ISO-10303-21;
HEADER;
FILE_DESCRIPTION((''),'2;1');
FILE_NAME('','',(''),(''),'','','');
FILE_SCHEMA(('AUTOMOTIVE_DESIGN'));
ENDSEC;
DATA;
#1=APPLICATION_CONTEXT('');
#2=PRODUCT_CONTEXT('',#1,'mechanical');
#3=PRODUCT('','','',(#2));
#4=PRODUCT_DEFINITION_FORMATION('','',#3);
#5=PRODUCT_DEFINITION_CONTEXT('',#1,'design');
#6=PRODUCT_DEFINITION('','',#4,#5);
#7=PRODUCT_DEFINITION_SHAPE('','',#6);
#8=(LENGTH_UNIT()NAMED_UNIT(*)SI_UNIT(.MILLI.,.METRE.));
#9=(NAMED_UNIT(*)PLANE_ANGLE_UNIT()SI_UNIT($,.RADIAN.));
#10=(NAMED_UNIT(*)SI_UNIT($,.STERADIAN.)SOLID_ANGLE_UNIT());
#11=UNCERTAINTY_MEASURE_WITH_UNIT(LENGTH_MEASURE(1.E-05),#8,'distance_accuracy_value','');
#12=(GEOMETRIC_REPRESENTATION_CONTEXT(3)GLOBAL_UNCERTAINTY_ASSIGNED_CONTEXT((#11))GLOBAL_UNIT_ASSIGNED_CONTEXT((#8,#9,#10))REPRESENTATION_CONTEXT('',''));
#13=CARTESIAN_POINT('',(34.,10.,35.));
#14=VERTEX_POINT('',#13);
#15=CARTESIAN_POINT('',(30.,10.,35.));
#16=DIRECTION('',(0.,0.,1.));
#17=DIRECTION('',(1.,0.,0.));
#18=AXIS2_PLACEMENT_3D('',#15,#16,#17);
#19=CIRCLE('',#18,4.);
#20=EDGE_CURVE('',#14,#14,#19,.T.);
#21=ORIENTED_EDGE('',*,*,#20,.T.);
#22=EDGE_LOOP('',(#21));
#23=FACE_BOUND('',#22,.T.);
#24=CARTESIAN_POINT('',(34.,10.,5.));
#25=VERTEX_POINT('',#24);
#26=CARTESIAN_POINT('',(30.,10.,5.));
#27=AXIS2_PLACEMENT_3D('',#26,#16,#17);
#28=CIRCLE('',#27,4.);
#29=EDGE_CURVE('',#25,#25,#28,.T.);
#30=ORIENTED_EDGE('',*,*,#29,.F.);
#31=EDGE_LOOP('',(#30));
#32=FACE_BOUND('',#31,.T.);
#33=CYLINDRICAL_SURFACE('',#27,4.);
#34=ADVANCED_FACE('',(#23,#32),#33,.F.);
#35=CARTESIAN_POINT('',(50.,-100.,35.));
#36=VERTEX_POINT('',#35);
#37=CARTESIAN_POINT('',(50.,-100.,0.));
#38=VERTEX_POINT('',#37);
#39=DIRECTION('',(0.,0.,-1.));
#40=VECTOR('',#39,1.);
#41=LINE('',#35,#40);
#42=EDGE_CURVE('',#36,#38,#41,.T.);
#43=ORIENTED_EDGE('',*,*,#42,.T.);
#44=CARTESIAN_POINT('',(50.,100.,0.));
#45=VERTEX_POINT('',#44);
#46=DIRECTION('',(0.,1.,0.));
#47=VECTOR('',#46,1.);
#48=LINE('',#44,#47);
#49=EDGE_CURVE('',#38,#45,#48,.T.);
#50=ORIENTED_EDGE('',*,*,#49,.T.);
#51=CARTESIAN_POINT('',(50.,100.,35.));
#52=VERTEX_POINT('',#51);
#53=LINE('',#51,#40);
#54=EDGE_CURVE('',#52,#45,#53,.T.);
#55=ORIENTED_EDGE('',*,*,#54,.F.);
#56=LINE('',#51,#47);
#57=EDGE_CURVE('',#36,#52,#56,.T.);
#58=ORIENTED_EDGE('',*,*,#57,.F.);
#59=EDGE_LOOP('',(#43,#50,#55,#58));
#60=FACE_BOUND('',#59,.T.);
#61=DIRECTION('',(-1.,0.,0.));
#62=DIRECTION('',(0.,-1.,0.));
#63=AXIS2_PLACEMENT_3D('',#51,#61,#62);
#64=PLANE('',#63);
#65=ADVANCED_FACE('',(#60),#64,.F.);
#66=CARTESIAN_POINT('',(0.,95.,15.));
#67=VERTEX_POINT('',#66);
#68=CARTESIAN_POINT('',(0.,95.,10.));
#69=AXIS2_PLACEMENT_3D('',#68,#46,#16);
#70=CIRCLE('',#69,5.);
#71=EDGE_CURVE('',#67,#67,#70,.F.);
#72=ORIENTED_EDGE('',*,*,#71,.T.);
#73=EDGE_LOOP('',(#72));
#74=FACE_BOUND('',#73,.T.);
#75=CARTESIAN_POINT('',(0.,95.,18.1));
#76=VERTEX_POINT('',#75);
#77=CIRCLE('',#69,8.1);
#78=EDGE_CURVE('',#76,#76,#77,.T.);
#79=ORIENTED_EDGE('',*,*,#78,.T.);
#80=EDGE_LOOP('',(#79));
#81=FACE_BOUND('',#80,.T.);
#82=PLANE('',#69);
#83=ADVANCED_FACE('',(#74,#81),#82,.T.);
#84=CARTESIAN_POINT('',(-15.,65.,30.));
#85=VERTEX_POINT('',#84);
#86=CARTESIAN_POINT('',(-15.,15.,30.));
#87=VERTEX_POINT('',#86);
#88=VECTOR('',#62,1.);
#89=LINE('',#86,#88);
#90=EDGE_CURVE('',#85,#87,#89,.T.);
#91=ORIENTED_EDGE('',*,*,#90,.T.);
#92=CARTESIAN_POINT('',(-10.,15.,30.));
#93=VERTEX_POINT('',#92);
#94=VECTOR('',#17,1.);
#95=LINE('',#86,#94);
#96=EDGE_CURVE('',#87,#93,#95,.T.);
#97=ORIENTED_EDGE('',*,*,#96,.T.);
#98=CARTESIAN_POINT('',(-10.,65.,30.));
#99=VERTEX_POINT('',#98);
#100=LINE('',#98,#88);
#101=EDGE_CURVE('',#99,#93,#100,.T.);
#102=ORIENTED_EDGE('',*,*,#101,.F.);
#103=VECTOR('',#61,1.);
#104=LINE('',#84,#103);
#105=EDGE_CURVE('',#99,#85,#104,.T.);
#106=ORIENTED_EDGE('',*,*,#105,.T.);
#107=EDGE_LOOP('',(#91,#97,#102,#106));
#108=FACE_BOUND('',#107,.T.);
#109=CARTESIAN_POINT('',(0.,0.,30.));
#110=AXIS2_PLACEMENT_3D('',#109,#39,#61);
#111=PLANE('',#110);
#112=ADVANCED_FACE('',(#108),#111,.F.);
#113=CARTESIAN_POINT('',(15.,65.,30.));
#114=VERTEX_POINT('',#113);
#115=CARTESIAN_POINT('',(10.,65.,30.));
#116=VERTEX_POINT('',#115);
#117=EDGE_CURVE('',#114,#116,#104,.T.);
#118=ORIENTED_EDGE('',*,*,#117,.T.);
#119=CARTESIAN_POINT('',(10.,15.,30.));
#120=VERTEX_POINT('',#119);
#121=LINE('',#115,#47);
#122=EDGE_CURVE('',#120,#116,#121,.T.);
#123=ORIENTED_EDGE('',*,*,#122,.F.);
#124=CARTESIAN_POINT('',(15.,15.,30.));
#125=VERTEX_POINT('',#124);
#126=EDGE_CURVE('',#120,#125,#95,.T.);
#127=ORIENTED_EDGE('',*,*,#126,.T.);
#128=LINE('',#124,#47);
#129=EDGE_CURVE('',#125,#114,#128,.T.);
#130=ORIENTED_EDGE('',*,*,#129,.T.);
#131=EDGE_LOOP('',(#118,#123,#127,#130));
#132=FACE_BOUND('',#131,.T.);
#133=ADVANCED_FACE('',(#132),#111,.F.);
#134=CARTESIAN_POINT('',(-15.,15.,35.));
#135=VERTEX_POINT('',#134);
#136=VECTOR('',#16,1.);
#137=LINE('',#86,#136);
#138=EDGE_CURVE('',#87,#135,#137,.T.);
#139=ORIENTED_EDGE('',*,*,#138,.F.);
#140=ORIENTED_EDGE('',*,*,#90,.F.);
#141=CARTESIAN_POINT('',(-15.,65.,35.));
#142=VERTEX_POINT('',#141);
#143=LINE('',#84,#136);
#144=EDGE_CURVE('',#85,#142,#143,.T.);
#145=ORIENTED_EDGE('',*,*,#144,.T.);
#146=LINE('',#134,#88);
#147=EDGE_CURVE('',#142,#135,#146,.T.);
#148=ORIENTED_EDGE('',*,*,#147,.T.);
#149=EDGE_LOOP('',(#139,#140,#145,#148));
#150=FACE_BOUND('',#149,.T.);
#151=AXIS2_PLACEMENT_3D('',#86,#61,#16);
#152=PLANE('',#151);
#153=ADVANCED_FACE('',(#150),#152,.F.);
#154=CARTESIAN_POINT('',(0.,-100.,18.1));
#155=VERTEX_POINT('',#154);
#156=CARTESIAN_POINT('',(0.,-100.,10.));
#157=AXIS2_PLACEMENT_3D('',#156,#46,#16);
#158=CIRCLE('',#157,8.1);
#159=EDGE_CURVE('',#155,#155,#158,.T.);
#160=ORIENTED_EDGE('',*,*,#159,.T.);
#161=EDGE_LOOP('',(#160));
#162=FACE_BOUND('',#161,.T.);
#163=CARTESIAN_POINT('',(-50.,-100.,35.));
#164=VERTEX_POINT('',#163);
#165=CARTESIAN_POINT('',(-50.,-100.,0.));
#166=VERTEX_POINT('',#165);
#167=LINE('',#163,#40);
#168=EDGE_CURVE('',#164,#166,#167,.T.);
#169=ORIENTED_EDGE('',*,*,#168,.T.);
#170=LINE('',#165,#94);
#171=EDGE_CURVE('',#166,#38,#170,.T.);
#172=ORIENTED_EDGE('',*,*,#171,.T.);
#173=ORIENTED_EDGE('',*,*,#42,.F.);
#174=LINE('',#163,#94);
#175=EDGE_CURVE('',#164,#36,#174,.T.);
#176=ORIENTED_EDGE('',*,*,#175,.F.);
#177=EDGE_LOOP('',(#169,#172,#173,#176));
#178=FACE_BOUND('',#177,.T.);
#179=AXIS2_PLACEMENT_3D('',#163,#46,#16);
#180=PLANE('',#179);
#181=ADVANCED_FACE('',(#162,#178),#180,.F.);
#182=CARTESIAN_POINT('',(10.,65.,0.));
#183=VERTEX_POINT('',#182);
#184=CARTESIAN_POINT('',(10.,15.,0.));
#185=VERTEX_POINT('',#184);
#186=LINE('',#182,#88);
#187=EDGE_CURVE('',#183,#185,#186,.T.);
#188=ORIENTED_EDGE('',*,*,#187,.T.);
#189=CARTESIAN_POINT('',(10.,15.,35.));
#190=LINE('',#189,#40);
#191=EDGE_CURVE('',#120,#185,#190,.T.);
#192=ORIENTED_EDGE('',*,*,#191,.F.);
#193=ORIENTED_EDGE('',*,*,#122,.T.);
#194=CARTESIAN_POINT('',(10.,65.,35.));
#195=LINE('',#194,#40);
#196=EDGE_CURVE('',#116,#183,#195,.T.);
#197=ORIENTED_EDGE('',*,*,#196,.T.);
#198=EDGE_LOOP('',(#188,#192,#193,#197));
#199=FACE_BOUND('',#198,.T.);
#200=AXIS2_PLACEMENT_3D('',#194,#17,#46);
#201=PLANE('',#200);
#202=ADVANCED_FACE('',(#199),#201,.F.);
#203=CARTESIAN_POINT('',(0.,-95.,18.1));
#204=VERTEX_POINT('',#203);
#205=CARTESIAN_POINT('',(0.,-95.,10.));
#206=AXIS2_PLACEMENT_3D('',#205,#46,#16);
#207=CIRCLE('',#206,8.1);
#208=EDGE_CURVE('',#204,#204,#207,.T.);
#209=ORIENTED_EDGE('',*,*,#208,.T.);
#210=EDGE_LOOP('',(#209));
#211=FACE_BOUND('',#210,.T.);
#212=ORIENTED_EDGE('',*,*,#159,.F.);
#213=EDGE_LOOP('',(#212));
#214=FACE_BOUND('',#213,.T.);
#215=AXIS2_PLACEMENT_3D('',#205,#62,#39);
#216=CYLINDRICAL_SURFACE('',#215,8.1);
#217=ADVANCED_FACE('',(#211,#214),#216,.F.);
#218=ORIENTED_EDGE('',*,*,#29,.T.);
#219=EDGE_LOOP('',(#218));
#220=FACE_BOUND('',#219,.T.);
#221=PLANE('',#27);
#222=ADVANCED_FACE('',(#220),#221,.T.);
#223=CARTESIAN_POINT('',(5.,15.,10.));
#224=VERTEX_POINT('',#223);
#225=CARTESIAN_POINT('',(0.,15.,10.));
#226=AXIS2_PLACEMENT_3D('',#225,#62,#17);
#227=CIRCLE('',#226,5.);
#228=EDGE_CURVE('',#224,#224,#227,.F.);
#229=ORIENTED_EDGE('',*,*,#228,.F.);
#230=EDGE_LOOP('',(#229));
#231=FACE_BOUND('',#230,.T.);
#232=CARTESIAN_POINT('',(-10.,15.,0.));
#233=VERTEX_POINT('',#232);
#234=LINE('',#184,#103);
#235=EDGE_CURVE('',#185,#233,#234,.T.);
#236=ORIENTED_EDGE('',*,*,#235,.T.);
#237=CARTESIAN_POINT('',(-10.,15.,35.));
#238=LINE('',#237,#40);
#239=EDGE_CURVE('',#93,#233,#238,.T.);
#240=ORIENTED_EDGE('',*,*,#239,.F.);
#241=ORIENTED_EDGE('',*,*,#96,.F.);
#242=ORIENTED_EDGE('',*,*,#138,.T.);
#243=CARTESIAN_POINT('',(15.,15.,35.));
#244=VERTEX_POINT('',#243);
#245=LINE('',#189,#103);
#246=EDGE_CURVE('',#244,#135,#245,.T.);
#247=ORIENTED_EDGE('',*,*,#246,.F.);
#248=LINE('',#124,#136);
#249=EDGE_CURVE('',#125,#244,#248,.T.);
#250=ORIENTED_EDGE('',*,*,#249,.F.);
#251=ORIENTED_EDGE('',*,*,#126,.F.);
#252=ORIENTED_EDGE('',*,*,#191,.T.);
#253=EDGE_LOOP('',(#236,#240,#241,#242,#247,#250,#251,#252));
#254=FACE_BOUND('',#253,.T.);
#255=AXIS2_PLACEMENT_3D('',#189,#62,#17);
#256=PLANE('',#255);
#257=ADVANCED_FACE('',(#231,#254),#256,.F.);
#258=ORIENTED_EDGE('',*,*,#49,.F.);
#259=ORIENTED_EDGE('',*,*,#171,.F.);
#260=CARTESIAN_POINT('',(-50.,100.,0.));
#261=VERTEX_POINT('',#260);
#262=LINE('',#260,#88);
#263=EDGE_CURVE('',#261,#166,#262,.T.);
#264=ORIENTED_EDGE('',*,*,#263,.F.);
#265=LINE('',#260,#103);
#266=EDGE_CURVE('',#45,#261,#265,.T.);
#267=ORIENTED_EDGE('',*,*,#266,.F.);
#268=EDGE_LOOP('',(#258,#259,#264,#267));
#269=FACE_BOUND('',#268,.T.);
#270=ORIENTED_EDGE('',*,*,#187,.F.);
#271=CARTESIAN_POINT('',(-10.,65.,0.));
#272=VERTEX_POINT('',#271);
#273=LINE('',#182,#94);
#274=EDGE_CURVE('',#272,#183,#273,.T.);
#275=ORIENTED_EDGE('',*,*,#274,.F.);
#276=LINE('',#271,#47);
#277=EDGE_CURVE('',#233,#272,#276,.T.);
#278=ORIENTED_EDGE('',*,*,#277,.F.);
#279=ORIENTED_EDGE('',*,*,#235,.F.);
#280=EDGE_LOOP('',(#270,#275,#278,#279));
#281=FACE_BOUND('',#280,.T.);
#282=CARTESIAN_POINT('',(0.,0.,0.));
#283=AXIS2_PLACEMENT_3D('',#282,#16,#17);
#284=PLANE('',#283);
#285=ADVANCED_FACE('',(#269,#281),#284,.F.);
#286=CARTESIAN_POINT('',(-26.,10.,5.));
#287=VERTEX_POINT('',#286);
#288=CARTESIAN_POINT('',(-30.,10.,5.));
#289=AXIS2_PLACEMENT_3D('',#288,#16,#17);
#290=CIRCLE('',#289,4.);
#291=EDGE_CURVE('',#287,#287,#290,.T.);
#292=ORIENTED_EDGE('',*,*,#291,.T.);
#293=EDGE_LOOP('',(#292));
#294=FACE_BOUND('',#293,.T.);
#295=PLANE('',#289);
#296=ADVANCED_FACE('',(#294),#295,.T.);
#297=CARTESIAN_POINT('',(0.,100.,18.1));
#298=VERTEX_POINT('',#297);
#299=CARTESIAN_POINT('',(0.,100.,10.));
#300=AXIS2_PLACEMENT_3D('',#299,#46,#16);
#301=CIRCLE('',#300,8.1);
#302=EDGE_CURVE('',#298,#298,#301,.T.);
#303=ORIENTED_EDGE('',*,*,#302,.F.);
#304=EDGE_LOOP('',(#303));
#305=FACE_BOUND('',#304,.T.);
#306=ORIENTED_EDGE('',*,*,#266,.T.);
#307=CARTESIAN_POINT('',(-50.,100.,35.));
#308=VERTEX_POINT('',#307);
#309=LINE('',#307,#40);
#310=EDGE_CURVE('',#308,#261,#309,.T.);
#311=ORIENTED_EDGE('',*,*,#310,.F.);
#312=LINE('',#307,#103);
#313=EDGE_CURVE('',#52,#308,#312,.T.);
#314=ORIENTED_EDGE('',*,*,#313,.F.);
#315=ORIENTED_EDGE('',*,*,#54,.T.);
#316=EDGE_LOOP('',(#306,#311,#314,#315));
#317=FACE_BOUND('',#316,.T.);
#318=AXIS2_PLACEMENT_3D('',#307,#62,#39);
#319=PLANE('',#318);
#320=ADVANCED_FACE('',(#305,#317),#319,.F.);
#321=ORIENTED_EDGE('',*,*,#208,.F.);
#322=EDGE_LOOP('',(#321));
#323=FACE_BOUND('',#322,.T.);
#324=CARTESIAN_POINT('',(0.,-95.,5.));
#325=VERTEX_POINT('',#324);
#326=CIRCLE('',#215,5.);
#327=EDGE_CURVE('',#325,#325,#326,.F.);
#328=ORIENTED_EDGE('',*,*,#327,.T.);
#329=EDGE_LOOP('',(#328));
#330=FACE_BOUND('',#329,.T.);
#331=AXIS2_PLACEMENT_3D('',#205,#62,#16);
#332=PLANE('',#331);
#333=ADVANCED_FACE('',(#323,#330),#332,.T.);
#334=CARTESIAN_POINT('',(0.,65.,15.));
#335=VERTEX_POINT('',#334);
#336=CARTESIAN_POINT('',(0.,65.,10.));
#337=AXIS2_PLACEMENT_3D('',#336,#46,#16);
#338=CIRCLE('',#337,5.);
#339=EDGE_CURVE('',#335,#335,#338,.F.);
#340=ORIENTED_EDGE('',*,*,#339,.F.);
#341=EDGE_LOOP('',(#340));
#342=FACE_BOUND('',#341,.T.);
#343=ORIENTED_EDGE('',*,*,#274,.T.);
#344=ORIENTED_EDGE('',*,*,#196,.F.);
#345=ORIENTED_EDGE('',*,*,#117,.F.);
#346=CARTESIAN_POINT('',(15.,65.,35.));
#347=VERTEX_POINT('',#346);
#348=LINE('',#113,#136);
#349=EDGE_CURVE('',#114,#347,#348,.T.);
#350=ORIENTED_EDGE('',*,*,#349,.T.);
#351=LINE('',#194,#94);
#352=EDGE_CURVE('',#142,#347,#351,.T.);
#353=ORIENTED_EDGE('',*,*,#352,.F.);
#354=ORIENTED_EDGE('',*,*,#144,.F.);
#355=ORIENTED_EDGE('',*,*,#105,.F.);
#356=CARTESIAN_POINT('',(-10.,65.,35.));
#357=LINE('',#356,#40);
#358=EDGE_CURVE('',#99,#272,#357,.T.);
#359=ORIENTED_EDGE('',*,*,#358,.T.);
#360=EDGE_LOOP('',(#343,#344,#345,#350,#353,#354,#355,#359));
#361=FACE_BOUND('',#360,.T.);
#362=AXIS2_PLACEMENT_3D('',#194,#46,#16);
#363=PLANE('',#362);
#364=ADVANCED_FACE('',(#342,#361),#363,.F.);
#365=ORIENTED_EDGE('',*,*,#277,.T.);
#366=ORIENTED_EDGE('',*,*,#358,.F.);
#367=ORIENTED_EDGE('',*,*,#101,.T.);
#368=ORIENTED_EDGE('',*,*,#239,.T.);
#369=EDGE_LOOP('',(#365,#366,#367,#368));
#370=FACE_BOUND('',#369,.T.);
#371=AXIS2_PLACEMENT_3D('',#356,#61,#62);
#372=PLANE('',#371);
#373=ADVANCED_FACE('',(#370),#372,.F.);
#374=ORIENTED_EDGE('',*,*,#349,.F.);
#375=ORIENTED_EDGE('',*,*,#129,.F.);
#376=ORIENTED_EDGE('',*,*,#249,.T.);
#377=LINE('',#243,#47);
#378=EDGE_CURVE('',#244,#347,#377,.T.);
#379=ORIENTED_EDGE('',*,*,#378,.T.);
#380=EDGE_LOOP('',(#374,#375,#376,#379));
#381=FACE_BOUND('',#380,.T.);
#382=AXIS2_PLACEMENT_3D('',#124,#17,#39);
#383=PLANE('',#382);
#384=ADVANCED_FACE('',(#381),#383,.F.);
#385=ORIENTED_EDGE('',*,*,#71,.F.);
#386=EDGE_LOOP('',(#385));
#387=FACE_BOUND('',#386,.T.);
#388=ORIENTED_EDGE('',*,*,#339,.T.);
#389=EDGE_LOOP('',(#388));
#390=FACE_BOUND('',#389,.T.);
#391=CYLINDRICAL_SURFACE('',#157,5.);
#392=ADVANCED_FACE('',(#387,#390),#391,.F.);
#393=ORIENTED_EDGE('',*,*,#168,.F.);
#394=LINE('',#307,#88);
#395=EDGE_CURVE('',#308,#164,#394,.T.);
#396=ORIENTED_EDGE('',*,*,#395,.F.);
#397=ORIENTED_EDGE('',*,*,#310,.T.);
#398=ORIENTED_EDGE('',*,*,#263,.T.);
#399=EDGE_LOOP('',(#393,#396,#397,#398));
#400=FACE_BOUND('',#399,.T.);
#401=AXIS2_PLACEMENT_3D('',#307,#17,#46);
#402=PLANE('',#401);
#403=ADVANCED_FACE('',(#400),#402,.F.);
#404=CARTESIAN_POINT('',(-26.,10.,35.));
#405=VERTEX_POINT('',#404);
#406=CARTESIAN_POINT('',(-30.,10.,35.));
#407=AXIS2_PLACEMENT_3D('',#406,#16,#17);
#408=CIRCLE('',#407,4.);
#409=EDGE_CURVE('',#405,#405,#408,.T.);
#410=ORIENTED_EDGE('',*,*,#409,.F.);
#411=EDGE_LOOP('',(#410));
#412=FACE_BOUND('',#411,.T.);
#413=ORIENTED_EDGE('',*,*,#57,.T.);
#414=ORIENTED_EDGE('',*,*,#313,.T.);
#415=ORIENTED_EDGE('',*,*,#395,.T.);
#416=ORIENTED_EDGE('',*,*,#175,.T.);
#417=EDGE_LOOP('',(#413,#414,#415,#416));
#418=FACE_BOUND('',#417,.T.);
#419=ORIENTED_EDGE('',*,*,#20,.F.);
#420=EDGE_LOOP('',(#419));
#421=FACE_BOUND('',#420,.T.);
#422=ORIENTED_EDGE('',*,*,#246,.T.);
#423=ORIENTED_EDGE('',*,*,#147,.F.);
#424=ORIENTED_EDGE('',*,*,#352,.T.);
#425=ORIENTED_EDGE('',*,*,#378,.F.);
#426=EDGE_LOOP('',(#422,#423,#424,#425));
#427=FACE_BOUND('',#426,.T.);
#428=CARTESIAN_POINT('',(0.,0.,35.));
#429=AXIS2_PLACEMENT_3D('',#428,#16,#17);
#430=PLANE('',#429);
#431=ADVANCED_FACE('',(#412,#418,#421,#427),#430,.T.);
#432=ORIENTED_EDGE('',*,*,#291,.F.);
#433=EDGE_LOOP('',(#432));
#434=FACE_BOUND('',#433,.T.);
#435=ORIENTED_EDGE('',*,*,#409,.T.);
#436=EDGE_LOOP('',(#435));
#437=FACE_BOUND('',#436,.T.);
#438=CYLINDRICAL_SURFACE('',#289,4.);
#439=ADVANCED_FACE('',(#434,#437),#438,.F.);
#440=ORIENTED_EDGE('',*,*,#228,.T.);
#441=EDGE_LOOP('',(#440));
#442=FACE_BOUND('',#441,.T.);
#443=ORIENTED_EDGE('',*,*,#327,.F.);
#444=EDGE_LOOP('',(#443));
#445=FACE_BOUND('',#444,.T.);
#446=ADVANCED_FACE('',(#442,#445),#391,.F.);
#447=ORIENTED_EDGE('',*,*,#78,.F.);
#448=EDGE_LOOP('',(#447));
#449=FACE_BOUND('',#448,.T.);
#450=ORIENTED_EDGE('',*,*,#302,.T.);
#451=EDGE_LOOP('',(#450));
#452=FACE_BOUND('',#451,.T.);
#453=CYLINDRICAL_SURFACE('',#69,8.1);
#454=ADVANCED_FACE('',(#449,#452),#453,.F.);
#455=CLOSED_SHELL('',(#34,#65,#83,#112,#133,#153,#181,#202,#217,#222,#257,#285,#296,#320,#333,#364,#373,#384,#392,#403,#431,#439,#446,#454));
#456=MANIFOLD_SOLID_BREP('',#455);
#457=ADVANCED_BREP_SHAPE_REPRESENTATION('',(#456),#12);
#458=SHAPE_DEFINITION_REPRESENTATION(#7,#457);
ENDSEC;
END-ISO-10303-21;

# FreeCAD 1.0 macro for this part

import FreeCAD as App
import Part
import Sketcher

V = App.Vector
Q = App.Units.Quantity

doc = App.newDocument("Part")
body = doc.addObject("PartDesign::Body", "Body")

# Sketch on XY plane
sketch1 = doc.addObject("Sketcher::SketchObject", "Sketch")
body.addObject(sketch1)
sketch1.AttachmentSupport = (doc.XY_Plane, [""])
sketch1.MapMode = "FlatFace"
sketch1.addGeometry([
    Part.LineSegment(V(-50, 100, 0), V(-50, -100, 0)),
    Part.LineSegment(V(-50, -100, 0), V(50, -100, 0)),
    Part.LineSegment(V(50, -100, 0), V(50, 100, 0)),
    Part.LineSegment(V(50, 100, 0), V(-50, 100, 0)),
], False)
sketch1.addConstraint([
    Sketcher.Constraint("Coincident", 0, 2, 1, 1),
    Sketcher.Constraint("Coincident", 1, 2, 2, 1),
    Sketcher.Constraint("Coincident", 2, 2, 3, 1),
    Sketcher.Constraint("Coincident", 3, 2, 0, 1),
    Sketcher.Constraint("Vertical", 0),
    Sketcher.Constraint("Horizontal", 1),
    Sketcher.Constraint("Vertical", 2),
    Sketcher.Constraint("Horizontal", 3),
    Sketcher.Constraint("Symmetric", 0, 2, 2, 2, -1, 1),
    Sketcher.Constraint("DistanceX", 1, 1, 1, 2, Q("100 mm")),
    Sketcher.Constraint("DistanceY", 0, 2, 0, 1, Q("200 mm")),
])
pad1 = doc.addObject("PartDesign::Pad", "Pad")
body.addObject(pad1)
pad1.Profile = sketch1
pad1.Length = 35

# Sketch on XY plane
sketch2 = doc.addObject("Sketcher::SketchObject", "Sketch001")
body.addObject(sketch2)
sketch2.AttachmentSupport = (doc.XY_Plane, [""])
sketch2.MapMode = "FlatFace"
sketch2.AttachmentOffset = App.Placement(V(0, 0, 35), App.Rotation())
sketch2.addGeometry([
    Part.Circle(V(-30, 10, 0), V(0, 0, 1), 4),
    Part.Circle(V(30, 10, 0), V(0, 0, 1), 4),
], False)
sketch2.addConstraint([
    Sketcher.Constraint("Equal", 0, 1),
    Sketcher.Constraint("Symmetric", 0, 3, 1, 3, -2),
    Sketcher.Constraint("Diameter", 0, Q("8 mm")),
    Sketcher.Constraint("DistanceX", 0, 3, -1, 1, Q("30 mm")),
    Sketcher.Constraint("DistanceY", -1, 1, 0, 3, Q("10 mm")),
])
pocket1 = doc.addObject("PartDesign::Pocket", "Pocket")
body.addObject(pocket1)
pocket1.Profile = sketch2
pocket1.Length = 30

# Sketch on XZ plane
sketch3 = doc.addObject("Sketcher::SketchObject", "Sketch002")
body.addObject(sketch3)
sketch3.AttachmentSupport = (doc.XZ_Plane, [""])
sketch3.MapMode = "FlatFace"
sketch3.AttachmentOffset = App.Placement(V(0, 0, -100), App.Rotation())
sketch3.addGeometry(Part.Circle(V(0, 10, 0), V(0, 0, 1), 5), False)
sketch3.addConstraint([
    Sketcher.Constraint("PointOnObject", 0, 3, -2),
    Sketcher.Constraint("Diameter", 0, Q("10 mm")),
    Sketcher.Constraint("DistanceY", -1, 1, 0, 3, Q("10 mm")),
])
pocket2 = doc.addObject("PartDesign::Pocket", "Pocket001")
body.addObject(pocket2)
pocket2.Profile = sketch3
pocket2.Type = "ThroughAll"
pocket2.Reversed = True

# Sketch on XY plane
sketch4 = doc.addObject("Sketcher::SketchObject", "Sketch003")
body.addObject(sketch4)
sketch4.AttachmentSupport = (doc.XY_Plane, [""])
sketch4.MapMode = "FlatFace"
sketch4.addGeometry([
    Part.LineSegment(V(10, 65, 0), V(10, 15, 0)),
    Part.LineSegment(V(10, 15, 0), V(-10, 15, 0)),
    Part.LineSegment(V(-10, 15, 0), V(-10, 65, 0)),
    Part.LineSegment(V(-10, 65, 0), V(10, 65, 0)),
], False)
sketch4.addConstraint([
    Sketcher.Constraint("Coincident", 0, 2, 1, 1),
    Sketcher.Constraint("Coincident", 1, 2, 2, 1),
    Sketcher.Constraint("Coincident", 2, 2, 3, 1),
    Sketcher.Constraint("Coincident", 3, 2, 0, 1),
    Sketcher.Constraint("Vertical", 0),
    Sketcher.Constraint("Horizontal", 1),
    Sketcher.Constraint("Vertical", 2),
    Sketcher.Constraint("Horizontal", 3),
    Sketcher.Constraint("DistanceX", 1, 2, 1, 1, Q("20 mm")),
    Sketcher.Constraint("DistanceY", 0, 2, 0, 1, Q("50 mm")),
    Sketcher.Constraint("DistanceX", -1, 1, 0, 2, Q("10 mm")),
    Sketcher.Constraint("DistanceY", -1, 1, 0, 2, Q("15 mm")),
])
pocket3 = doc.addObject("PartDesign::Pocket", "Pocket002")
body.addObject(pocket3)
pocket3.Profile = sketch4
pocket3.Type = "ThroughAll"
pocket3.Reversed = True

# Sketch on XZ plane
sketch5 = doc.addObject("Sketcher::SketchObject", "Sketch004")
body.addObject(sketch5)
sketch5.AttachmentSupport = (doc.XZ_Plane, [""])
sketch5.MapMode = "FlatFace"
sketch5.AttachmentOffset = App.Placement(V(0, 0, -100), App.Rotation())
sketch5.addGeometry(Part.Circle(V(0, 10, 0), V(0, 0, 1), 8), False)
sketch5.addConstraint([
    Sketcher.Constraint("PointOnObject", 0, 3, -2),
    Sketcher.Constraint("Diameter", 0, Q("16.2 mm")),
    Sketcher.Constraint("DistanceY", -1, 1, 0, 3, Q("10 mm")),
])
pocket4 = doc.addObject("PartDesign::Pocket", "Pocket003")
body.addObject(pocket4)
pocket4.Profile = sketch5
pocket4.Length = 5
pocket4.Reversed = True
doc.recompute()

mirrored = doc.addObject("PartDesign::Mirrored", "Mirrored")
body.addObject(mirrored)
mirrored.Originals = [pocket4]
mirrored.MirrorPlane = (doc.XZ_Plane, [""])
body.Tip = mirrored

# Sketch on XY plane
sketch6 = doc.addObject("Sketcher::SketchObject", "Sketch005")
body.addObject(sketch6)
sketch6.AttachmentSupport = (doc.XY_Plane, [""])
sketch6.MapMode = "FlatFace"
sketch6.AttachmentOffset = App.Placement(V(0, 0, 35), App.Rotation())
sketch6.addGeometry([
    Part.LineSegment(V(-15, 65, 0), V(-15, 15, 0)),
    Part.LineSegment(V(-15, 15, 0), V(15, 15, 0)),
    Part.LineSegment(V(15, 15, 0), V(15, 65, 0)),
    Part.LineSegment(V(15, 65, 0), V(-15, 65, 0)),
], False)
sketch6.addConstraint([
    Sketcher.Constraint("Coincident", 0, 2, 1, 1),
    Sketcher.Constraint("Coincident", 1, 2, 2, 1),
    Sketcher.Constraint("Coincident", 2, 2, 3, 1),
    Sketcher.Constraint("Coincident", 3, 2, 0, 1),
    Sketcher.Constraint("Vertical", 0),
    Sketcher.Constraint("Horizontal", 1),
    Sketcher.Constraint("Vertical", 2),
    Sketcher.Constraint("Horizontal", 3),
    Sketcher.Constraint("DistanceX", 1, 1, 1, 2, Q("30 mm")),
    Sketcher.Constraint("DistanceY", 0, 2, 0, 1, Q("50 mm")),
    Sketcher.Constraint("DistanceX", 0, 2, -1, 1, Q("15 mm")),
    Sketcher.Constraint("DistanceY", -1, 1, 0, 2, Q("15 mm")),
])
pocket5 = doc.addObject("PartDesign::Pocket", "Pocket004")
body.addObject(pocket5)
pocket5.Profile = sketch6
pocket5.Length = 5

doc.recompute()
